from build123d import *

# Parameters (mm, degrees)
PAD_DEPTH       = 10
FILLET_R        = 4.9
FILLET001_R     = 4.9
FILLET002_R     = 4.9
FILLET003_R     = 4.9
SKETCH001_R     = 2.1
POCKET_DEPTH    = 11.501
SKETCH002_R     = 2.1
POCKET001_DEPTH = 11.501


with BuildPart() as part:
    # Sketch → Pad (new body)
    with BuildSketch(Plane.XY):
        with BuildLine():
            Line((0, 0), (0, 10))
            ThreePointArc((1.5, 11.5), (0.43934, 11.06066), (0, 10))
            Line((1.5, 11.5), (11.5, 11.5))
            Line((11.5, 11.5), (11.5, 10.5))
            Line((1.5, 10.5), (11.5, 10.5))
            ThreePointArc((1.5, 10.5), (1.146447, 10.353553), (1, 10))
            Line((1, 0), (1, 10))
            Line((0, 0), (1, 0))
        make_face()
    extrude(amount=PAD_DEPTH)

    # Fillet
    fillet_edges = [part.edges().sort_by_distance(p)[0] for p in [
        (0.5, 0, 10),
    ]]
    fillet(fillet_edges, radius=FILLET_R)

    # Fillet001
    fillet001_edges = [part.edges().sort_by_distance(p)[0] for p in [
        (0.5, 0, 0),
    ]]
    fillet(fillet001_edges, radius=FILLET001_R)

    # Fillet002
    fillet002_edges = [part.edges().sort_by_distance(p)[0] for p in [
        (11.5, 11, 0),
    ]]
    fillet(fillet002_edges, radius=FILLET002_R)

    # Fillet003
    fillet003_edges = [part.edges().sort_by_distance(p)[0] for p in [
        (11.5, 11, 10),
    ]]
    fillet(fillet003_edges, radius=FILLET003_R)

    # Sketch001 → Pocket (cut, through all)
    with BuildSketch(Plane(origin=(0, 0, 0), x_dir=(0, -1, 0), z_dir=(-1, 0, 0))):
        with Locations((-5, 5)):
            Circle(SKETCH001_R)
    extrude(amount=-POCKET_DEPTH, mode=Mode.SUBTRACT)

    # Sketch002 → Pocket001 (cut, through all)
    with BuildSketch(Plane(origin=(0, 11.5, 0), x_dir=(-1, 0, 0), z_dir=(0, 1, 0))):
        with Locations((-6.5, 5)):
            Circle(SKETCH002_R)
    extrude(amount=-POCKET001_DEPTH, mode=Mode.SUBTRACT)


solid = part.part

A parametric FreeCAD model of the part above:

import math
import FreeCAD as App
import Part
import Sketcher

V = App.Vector
Q = App.Units.Quantity


def edges_at(feature, points):
    """Names of the edges that pass closest to the given points."""
    edges = feature.Shape.Edges
    near = lambda p: min(range(len(edges)), key=lambda i: edges[i].distToShape(Part.Vertex(*p))[0])
    return sorted({f"Edge{near(p) + 1}" for p in points})

doc = App.newDocument("Part")
body = doc.addObject("PartDesign::Body", "Body")

sketch1 = doc.addObject("Sketcher::SketchObject", "Sketch")
body.addObject(sketch1)
sketch1.AttachmentSupport = (doc.XY_Plane, [""])
sketch1.MapMode = "FlatFace"
sketch1.addGeometry([
    Part.LineSegment(V(0, 10, 0), V(0, 0, 0)),
    Part.LineSegment(V(0, 0, 0), V(1, 0, 0)),
    Part.LineSegment(V(1, 0, 0), V(1, 10, 0)),
    Part.ArcOfCircle(Part.Circle(V(1.5, 10, 0), V(0, 0, 1), 0.5), math.radians(90), math.radians(180)),
    Part.LineSegment(V(1.5, 10.5, 0), V(11.5, 10.5, 0)),
    Part.LineSegment(V(11.5, 10.5, 0), V(11.5, 11.5, 0)),
    Part.LineSegment(V(11.5, 11.5, 0), V(1.5, 11.5, 0)),
    Part.ArcOfCircle(Part.Circle(V(1.5, 10, 0), V(0, 0, 1), 1.5), math.radians(90), math.radians(180)),
], False)
sketch1.addConstraint([
    Sketcher.Constraint("Coincident", 0, 2, 1, 1),
    Sketcher.Constraint("Coincident", 1, 2, 2, 1),
    Sketcher.Constraint("Coincident", 2, 2, 3, 2),
    Sketcher.Constraint("Coincident", 3, 1, 4, 1),
    Sketcher.Constraint("Coincident", 4, 2, 5, 1),
    Sketcher.Constraint("Coincident", 5, 2, 6, 1),
    Sketcher.Constraint("Tangent", 6, 2, 7, 1),
    Sketcher.Constraint("Tangent", 7, 2, 0, 1),
    Sketcher.Constraint("Vertical", 0),
    Sketcher.Constraint("Horizontal", 1),
    Sketcher.Constraint("Vertical", 2),
    Sketcher.Constraint("Horizontal", 4),
    Sketcher.Constraint("Vertical", 5),
    Sketcher.Constraint("Horizontal", 6),
    Sketcher.Constraint("Coincident", 0, 2, -1, 1),
    Sketcher.Constraint("Coincident", 7, 3, 3, 3),
    Sketcher.Constraint("Horizontal", 7, 3, 2, 2),
    Sketcher.Constraint("Vertical", 7, 3, 3, 1),
    Sketcher.Constraint("Equal", 6, 0),
    Sketcher.Constraint("Radius", 3, Q("0.500001 mm")),
    Sketcher.Constraint("Radius", 7, Q("1.500001 mm")),
    Sketcher.Constraint("DistanceX", 4, 1, 4, 2, Q("10 mm")),
])
pad1 = doc.addObject("PartDesign::Pad", "Pad")
body.addObject(pad1)
pad1.Profile = sketch1
pad1.Length = 10
doc.recompute()

fillet = doc.addObject("PartDesign::Fillet", "Fillet")
body.addObject(fillet)
fillet.Base = (pad1, edges_at(pad1, [(0.5, 0, 10)]))
fillet.Radius = 4.9
doc.recompute()

fillet2 = doc.addObject("PartDesign::Fillet", "Fillet001")
body.addObject(fillet2)
fillet2.Base = (fillet, edges_at(fillet, [(0.5, 0, 0)]))
fillet2.Radius = 4.9
doc.recompute()

fillet3 = doc.addObject("PartDesign::Fillet", "Fillet002")
body.addObject(fillet3)
fillet3.Base = (fillet2, edges_at(fillet2, [(11.5, 11, 0)]))
fillet3.Radius = 4.9
doc.recompute()

fillet4 = doc.addObject("PartDesign::Fillet", "Fillet003")
body.addObject(fillet4)
fillet4.Base = (fillet3, edges_at(fillet3, [(11.5, 11, 10)]))
fillet4.Radius = 4.9

sketch2 = doc.addObject("Sketcher::SketchObject", "Sketch001")
body.addObject(sketch2)
sketch2.AttachmentSupport = (doc.YZ_Plane, [""])
sketch2.MapMode = "FlatFace"
sketch2.addGeometry(Part.Circle(V(5, 5, 0), V(0, 0, 1), 2.1), False)
sketch2.addConstraint([
    Sketcher.Constraint("Diameter", 0, Q("4.2 mm")),
    Sketcher.Constraint("DistanceX", -1, 1, 0, 3, Q("5 mm")),
    Sketcher.Constraint("DistanceY", -1, 1, 0, 3, Q("5 mm")),
])
pocket1 = doc.addObject("PartDesign::Pocket", "Pocket")
body.addObject(pocket1)
pocket1.Profile = sketch2
pocket1.Type = "ThroughAll"
pocket1.Reversed = True

sketch3 = doc.addObject("Sketcher::SketchObject", "Sketch002")
body.addObject(sketch3)
sketch3.AttachmentSupport = (doc.XZ_Plane, [""])
sketch3.MapMode = "FlatFace"
sketch3.AttachmentOffset = App.Placement(V(0, 0, -11.5), App.Rotation())
sketch3.addGeometry(Part.Circle(V(6.5, 5, 0), V(0, 0, 1), 2.1), False)
sketch3.addConstraint([
    Sketcher.Constraint("Diameter", 0, Q("4.2 mm")),
    Sketcher.Constraint("DistanceY", -1, 1, 0, 3, Q("5 mm")),
    Sketcher.Constraint("DistanceX", -1, 1, 0, 3, Q("6.5 mm")),
])
pocket2 = doc.addObject("PartDesign::Pocket", "Pocket001")
body.addObject(pocket2)
pocket2.Profile = sketch3
pocket2.Type = "ThroughAll"
pocket2.Reversed = True

doc.recompute()
